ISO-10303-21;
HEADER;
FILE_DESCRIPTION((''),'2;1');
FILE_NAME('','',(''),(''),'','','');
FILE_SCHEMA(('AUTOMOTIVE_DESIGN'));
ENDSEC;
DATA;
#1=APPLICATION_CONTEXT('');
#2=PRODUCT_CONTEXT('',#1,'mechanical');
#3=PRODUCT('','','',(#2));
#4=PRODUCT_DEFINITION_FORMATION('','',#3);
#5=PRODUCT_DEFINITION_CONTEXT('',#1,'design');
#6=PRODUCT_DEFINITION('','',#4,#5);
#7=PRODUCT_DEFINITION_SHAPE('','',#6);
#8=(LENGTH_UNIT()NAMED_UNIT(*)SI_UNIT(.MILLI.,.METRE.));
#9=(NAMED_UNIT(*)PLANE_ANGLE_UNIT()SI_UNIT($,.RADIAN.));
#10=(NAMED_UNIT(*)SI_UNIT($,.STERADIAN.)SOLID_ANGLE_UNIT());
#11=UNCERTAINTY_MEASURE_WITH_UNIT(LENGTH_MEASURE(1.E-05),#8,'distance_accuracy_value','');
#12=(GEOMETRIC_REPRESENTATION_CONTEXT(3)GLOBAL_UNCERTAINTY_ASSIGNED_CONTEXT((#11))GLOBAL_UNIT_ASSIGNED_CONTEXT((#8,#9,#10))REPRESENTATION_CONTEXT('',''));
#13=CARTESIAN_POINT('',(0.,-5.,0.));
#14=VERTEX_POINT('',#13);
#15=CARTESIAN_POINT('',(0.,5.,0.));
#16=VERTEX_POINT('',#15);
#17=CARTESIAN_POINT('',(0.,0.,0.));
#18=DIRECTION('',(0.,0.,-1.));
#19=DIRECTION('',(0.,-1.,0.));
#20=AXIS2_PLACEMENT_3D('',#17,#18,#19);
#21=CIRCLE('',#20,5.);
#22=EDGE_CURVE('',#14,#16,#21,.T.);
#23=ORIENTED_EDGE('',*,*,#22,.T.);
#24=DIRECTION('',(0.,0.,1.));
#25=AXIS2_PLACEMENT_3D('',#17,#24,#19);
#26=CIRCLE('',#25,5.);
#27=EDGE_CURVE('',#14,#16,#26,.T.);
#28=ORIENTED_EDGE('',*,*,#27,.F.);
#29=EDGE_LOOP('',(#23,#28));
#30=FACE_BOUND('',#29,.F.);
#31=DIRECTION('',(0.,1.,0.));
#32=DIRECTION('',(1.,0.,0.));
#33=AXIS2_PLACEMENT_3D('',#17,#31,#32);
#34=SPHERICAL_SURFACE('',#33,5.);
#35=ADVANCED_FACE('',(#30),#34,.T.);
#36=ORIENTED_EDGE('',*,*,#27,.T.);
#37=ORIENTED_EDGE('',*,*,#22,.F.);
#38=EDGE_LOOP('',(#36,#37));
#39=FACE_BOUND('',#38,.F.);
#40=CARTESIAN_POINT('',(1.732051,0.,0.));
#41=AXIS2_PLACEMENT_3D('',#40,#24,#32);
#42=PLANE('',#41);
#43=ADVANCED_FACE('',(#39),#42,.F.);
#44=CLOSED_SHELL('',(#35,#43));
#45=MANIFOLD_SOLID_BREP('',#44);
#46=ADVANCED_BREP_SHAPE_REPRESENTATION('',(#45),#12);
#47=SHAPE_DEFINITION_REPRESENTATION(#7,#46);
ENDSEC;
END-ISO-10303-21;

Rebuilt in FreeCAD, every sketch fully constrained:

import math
import FreeCAD as App
import Part
import Sketcher
from FreeCAD import Vector
Q = App.Units.Quantity

doc = App.newDocument("Part")
body = doc.addObject("PartDesign::Body", "Body")

# Sketch on XY plane
sketch1 = body.newObject("Sketcher::SketchObject", "Sketch")
sketch1.AttachmentSupport = (doc.getObject("XY_Plane"), [""])
sketch1.MapMode = "FlatFace"
sketch1.addGeometry(Part.LineSegment(Vector(0, 5, 0), Vector(0, -5, 0)), False)
sketch1.addGeometry(Part.ArcOfCircle(Part.Circle(Vector(0, 0, 0), Vector(0, 0, 1), 5), math.radians(-90), math.radians(90)), False)
sketch1.addConstraint(Sketcher.Constraint("Coincident", 0, 1, 1, 2))
sketch1.addConstraint(Sketcher.Constraint("Coincident", 1, 1, 0, 2))
sketch1.addConstraint(Sketcher.Constraint("Vertical", 0))
sketch1.addConstraint(Sketcher.Constraint("Coincident", 1, 3, -1, 1))
sketch1.addConstraint(Sketcher.Constraint("PointOnObject", 0, 1, -2))
sketch1.addConstraint(Sketcher.Constraint("Radius", 1, Q("5 mm")))
revolution = body.newObject("PartDesign::Revolution", "Revolution")
revolution.Profile = sketch1
revolution.ReferenceAxis = (sketch1, ["V_Axis"])
revolution.Angle = 180
revolution.Reversed = True

doc.recompute()
